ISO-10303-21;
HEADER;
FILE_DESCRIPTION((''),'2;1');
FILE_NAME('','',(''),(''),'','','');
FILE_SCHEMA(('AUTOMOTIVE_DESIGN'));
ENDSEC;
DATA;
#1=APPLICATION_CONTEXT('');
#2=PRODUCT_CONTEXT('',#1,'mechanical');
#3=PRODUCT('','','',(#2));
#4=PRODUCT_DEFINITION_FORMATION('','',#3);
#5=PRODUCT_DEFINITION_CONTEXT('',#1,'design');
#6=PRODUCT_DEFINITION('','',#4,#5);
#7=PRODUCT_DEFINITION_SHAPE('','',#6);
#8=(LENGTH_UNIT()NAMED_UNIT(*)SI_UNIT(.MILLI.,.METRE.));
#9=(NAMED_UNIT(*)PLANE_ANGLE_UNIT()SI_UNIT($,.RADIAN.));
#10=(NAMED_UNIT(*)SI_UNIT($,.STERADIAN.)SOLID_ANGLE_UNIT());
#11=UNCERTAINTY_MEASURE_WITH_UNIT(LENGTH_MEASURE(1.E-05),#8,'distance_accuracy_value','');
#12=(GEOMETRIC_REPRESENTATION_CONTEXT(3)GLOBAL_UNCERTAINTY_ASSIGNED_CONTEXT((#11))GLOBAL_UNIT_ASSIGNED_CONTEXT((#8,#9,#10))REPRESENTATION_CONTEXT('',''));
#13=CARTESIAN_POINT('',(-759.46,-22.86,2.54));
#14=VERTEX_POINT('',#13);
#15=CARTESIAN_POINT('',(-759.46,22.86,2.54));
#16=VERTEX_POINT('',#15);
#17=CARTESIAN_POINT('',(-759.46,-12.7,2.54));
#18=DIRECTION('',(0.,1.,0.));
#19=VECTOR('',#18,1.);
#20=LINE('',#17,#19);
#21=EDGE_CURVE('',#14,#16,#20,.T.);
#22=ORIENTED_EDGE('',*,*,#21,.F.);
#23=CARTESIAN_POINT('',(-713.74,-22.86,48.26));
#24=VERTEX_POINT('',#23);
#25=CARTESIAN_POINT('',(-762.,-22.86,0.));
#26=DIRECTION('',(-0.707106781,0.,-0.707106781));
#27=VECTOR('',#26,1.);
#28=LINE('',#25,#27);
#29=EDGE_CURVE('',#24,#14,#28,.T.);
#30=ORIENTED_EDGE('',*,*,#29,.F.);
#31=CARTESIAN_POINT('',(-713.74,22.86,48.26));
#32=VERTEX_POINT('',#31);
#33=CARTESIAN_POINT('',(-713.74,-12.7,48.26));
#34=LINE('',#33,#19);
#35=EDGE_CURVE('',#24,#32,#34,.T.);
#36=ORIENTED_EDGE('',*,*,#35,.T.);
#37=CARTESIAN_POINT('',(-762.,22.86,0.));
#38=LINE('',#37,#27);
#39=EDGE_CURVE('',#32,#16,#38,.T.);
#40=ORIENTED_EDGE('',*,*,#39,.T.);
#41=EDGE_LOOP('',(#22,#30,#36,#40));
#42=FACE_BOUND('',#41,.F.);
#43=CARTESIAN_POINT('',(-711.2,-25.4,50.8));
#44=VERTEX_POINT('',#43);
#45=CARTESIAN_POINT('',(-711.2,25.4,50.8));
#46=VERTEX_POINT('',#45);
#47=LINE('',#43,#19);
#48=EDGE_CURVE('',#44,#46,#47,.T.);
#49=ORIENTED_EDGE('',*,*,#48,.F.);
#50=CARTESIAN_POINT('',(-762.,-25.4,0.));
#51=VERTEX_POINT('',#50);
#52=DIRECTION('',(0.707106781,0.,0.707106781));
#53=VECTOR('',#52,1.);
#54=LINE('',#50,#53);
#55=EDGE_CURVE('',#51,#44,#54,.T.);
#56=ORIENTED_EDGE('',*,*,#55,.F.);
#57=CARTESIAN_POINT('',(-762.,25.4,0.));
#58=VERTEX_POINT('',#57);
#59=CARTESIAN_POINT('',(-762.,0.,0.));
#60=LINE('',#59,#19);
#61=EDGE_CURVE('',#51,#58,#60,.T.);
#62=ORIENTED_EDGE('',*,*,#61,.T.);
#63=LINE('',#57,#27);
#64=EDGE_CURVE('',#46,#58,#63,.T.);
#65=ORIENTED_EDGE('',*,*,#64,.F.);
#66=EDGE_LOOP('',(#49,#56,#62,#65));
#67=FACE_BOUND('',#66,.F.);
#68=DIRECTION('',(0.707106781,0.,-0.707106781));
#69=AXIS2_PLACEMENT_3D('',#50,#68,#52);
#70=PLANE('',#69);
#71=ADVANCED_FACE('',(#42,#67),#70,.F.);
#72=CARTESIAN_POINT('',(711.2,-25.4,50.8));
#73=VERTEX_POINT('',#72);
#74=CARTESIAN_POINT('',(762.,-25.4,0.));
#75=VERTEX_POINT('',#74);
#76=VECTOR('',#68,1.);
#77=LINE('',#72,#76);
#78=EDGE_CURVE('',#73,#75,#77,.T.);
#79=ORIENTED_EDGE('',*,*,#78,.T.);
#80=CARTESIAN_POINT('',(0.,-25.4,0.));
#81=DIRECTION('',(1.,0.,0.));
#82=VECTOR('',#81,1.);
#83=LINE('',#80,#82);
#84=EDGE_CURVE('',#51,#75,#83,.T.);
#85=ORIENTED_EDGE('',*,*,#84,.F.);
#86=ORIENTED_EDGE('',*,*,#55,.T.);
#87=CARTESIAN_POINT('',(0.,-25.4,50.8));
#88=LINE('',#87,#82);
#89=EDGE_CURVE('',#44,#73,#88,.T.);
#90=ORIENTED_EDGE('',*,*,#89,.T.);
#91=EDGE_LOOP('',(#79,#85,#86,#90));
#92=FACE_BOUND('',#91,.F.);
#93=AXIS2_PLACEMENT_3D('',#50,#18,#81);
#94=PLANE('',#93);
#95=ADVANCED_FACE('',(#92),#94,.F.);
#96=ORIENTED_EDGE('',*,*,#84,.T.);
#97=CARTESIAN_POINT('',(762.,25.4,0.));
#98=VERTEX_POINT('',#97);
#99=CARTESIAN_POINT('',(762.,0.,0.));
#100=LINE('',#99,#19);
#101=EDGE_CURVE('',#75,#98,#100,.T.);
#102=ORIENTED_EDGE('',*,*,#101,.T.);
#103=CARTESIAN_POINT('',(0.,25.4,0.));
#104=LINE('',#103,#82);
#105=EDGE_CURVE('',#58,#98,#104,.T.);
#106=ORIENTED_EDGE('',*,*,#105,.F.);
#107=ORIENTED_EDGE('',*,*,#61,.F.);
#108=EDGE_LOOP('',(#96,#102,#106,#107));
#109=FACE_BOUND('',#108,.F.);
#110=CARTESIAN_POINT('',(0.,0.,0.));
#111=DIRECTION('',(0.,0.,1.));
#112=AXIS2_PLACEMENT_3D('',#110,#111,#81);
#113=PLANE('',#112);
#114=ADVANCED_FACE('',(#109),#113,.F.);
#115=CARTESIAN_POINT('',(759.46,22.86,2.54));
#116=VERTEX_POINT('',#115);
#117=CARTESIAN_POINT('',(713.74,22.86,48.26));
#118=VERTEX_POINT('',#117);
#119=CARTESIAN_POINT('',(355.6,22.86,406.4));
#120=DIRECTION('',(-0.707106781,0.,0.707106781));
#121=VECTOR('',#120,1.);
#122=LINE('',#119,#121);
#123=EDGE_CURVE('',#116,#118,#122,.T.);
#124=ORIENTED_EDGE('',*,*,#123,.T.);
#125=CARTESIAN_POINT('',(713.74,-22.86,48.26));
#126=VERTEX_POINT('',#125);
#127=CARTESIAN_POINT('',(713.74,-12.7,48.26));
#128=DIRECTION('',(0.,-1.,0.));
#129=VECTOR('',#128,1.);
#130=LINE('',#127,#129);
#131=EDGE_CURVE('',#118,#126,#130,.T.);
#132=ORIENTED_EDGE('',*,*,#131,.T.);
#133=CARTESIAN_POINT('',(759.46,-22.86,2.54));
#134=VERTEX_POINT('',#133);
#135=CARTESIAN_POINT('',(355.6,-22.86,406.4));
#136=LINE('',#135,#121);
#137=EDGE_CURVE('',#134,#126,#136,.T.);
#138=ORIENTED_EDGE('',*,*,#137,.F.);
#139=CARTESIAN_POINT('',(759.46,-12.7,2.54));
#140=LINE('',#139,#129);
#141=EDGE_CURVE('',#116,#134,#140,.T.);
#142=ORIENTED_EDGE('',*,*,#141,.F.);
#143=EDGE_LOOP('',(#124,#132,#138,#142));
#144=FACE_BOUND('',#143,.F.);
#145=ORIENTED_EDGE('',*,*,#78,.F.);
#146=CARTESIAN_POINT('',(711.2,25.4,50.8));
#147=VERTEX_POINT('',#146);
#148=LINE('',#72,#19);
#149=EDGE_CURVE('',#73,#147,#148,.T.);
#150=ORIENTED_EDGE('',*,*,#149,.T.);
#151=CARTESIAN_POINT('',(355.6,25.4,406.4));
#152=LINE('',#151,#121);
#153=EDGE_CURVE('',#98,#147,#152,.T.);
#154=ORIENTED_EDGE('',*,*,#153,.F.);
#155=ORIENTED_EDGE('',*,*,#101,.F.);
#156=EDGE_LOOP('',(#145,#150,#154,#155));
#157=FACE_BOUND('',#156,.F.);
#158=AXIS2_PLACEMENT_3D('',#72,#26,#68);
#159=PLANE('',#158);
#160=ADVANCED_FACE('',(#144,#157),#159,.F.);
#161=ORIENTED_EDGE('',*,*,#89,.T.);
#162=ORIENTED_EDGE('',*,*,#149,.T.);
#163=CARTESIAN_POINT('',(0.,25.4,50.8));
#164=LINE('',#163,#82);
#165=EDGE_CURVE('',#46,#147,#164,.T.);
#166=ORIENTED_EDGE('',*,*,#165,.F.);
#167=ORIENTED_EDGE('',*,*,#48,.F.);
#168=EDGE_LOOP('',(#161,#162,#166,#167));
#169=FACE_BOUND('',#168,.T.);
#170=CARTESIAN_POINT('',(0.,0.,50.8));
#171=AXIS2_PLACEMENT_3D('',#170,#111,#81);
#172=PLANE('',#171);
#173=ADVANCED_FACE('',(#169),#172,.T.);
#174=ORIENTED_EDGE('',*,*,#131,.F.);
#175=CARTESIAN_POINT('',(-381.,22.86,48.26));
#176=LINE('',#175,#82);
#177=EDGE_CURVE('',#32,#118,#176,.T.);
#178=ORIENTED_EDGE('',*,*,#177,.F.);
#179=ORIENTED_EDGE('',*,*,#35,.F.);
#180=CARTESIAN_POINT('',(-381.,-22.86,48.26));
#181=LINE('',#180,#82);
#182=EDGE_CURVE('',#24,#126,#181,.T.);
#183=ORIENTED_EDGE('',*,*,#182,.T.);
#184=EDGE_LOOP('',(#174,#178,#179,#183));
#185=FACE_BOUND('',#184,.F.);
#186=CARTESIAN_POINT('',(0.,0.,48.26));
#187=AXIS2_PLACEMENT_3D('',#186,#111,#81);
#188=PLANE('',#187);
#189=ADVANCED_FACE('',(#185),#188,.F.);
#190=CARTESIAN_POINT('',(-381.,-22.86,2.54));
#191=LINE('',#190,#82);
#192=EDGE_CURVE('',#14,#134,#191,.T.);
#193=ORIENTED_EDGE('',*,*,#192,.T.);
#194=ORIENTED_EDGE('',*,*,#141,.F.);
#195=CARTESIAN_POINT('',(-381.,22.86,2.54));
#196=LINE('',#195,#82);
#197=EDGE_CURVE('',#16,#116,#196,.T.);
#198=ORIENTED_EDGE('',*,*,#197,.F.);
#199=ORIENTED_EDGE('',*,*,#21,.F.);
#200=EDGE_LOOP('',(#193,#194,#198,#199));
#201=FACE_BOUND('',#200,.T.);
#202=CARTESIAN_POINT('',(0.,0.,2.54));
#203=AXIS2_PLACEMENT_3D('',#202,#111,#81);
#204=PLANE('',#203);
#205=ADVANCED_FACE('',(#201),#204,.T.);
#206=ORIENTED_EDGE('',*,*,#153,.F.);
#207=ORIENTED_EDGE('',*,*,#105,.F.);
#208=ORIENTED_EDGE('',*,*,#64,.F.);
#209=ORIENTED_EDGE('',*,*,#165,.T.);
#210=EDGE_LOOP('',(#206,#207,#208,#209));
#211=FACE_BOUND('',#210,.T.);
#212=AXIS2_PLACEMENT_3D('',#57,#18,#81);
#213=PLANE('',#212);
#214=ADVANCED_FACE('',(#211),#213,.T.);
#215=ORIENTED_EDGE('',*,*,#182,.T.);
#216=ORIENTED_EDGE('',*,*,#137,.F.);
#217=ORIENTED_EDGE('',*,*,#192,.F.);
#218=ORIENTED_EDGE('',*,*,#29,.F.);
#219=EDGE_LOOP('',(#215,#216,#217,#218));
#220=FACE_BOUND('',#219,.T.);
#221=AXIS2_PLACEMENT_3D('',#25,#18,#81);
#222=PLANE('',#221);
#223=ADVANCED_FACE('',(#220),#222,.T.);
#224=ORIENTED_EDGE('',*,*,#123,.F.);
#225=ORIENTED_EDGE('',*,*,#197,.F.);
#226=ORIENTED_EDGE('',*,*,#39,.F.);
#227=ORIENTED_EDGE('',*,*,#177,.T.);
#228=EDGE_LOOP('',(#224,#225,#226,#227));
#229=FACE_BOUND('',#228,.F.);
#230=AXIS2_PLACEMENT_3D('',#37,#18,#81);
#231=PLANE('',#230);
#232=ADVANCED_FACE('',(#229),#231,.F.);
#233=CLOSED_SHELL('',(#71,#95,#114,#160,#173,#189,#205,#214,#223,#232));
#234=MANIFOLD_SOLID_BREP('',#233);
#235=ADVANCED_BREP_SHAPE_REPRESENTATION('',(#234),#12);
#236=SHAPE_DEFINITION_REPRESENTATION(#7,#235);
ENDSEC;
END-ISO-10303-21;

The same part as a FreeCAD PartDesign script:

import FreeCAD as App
import Part
import Sketcher

V = App.Vector
Q = App.Units.Quantity


def faces_at(feature, points):
    """Names of the faces that lie closest to the given points."""
    faces = feature.Shape.Faces
    near = lambda p: min(range(len(faces)), key=lambda i: faces[i].distToShape(Part.Vertex(*p))[0])
    return sorted({f"Face{near(p) + 1}" for p in points})


def add_polygon(sketch, points):
    """Adds a closed chain of lines whose ends are joined by coincident constraints."""
    first, n = sketch.GeometryCount, len(points)
    for a, b in zip(points, points[1:] + points[:1]):
        sketch.addGeometry(Part.LineSegment(App.Vector(*a, 0), App.Vector(*b, 0)), False)
    for i in range(n):
        sketch.addConstraint(Sketcher.Constraint("Coincident", first + i, 2, first + (i + 1) % n, 1))

doc = App.newDocument("Part")
params = doc.addObject("Spreadsheet::Sheet", "Params")
for row, (alias, value) in enumerate([
    ("sketch1_width", "60 in"),
    ("sketch1_height", "2 in"),
    ("pad1_length", "2 in"),
    ("thickness_wall", "0.1 in"),
    ("sketch2_width", "2 in"),
    ("sketch3_width", "2 in"),
], start=1):
    params.set(f"A{row}", alias)
    params.set(f"B{row}", "=" + value)
    params.setAlias(f"B{row}", alias)

body = doc.addObject("PartDesign::Body", "Body")

# Sketch on XY plane
sketch1 = body.newObject("Sketcher::SketchObject", "Sketch")
sketch1.AttachmentSupport = (doc.getObject("XY_Plane"), [""])
sketch1.MapMode = "FlatFace"
add_polygon(sketch1, [(-762, 25), (-762, -25), (762, -25), (762, 25)])  # lines 0-3
sketch1.addConstraint([
    Sketcher.Constraint("Vertical", 0),
    Sketcher.Constraint("Horizontal", 1),
    Sketcher.Constraint("Vertical", 2),
    Sketcher.Constraint("Horizontal", 3),
    Sketcher.Constraint("Symmetric", 0, 2, 2, 2, -1, 1),
    Sketcher.Constraint("DistanceX", 1, 1, 1, 2, Q("60 in")),
    Sketcher.Constraint("DistanceY", 0, 2, 0, 1, Q("2 in")),
])
sketch1.setExpression("Constraints[9]", "Params.sketch1_width")
sketch1.setExpression("Constraints[10]", "Params.sketch1_height")
pad1 = body.newObject("PartDesign::Pad", "Pad")
pad1.Profile = sketch1
pad1.setExpression("Length", "Params.pad1_length")
doc.recompute()

thickness = body.newObject("PartDesign::Thickness", "Thickness")
thickness.Base = (pad1, faces_at(pad1, [(-762, 0, 25.4), (762, 0, 25.4)]))
thickness.setExpression("Value", "Params.thickness_wall")
thickness.Reversed = True
thickness.Join = "Arc"

# Sketch on XZ plane
sketch2 = body.newObject("Sketcher::SketchObject", "Sketch001")
sketch2.AttachmentSupport = (doc.getObject("XZ_Plane"), [""])
sketch2.MapMode = "FlatFace"
sketch2.AttachmentOffset = App.Placement(V(0, 0, 1 * 25.4), App.Rotation())
add_polygon(sketch2, [(711, 51), (762, 0), (762, 51)])  # lines 0-2
sketch2.addConstraint([
    Sketcher.Constraint("Vertical", 1),
    Sketcher.Constraint("Horizontal", 2),
    Sketcher.Constraint("PointOnObject", 0, 2, -1),
    Sketcher.Constraint("Equal", 2, 1),
    Sketcher.Constraint("DistanceX", 2, 2, 2, 1, Q("2 in")),
    Sketcher.Constraint("DistanceX", -1, 1, 0, 2, Q("30 in")),
])
sketch2.setExpression("Constraints[7]", "Params.sketch2_width")
pocket1 = body.newObject("PartDesign::Pocket", "Pocket")
pocket1.Profile = sketch2
pocket1.Type = "ThroughAll"

# Sketch on XZ plane
sketch3 = body.newObject("Sketcher::SketchObject", "Sketch002")
sketch3.AttachmentSupport = (doc.getObject("XZ_Plane"), [""])
sketch3.MapMode = "FlatFace"
sketch3.AttachmentOffset = App.Placement(V(0, 0, 1 * 25.4), App.Rotation())
add_polygon(sketch3, [(-762, 51), (-762, 0), (-711, 51)])  # lines 0-2
sketch3.addConstraint([
    Sketcher.Constraint("Vertical", 0),
    Sketcher.Constraint("Horizontal", 2),
    Sketcher.Constraint("PointOnObject", 0, 2, -1),
    Sketcher.Constraint("Equal", 2, 0),
    Sketcher.Constraint("DistanceX", 2, 2, 2, 1, Q("2 in")),
    Sketcher.Constraint("DistanceX", 0, 2, -1, 1, Q("30 in")),
])
sketch3.setExpression("Constraints[7]", "Params.sketch3_width")
pocket2 = body.newObject("PartDesign::Pocket", "Pocket001")
pocket2.Profile = sketch3
pocket2.Type = "ThroughAll"

doc.recompute()
